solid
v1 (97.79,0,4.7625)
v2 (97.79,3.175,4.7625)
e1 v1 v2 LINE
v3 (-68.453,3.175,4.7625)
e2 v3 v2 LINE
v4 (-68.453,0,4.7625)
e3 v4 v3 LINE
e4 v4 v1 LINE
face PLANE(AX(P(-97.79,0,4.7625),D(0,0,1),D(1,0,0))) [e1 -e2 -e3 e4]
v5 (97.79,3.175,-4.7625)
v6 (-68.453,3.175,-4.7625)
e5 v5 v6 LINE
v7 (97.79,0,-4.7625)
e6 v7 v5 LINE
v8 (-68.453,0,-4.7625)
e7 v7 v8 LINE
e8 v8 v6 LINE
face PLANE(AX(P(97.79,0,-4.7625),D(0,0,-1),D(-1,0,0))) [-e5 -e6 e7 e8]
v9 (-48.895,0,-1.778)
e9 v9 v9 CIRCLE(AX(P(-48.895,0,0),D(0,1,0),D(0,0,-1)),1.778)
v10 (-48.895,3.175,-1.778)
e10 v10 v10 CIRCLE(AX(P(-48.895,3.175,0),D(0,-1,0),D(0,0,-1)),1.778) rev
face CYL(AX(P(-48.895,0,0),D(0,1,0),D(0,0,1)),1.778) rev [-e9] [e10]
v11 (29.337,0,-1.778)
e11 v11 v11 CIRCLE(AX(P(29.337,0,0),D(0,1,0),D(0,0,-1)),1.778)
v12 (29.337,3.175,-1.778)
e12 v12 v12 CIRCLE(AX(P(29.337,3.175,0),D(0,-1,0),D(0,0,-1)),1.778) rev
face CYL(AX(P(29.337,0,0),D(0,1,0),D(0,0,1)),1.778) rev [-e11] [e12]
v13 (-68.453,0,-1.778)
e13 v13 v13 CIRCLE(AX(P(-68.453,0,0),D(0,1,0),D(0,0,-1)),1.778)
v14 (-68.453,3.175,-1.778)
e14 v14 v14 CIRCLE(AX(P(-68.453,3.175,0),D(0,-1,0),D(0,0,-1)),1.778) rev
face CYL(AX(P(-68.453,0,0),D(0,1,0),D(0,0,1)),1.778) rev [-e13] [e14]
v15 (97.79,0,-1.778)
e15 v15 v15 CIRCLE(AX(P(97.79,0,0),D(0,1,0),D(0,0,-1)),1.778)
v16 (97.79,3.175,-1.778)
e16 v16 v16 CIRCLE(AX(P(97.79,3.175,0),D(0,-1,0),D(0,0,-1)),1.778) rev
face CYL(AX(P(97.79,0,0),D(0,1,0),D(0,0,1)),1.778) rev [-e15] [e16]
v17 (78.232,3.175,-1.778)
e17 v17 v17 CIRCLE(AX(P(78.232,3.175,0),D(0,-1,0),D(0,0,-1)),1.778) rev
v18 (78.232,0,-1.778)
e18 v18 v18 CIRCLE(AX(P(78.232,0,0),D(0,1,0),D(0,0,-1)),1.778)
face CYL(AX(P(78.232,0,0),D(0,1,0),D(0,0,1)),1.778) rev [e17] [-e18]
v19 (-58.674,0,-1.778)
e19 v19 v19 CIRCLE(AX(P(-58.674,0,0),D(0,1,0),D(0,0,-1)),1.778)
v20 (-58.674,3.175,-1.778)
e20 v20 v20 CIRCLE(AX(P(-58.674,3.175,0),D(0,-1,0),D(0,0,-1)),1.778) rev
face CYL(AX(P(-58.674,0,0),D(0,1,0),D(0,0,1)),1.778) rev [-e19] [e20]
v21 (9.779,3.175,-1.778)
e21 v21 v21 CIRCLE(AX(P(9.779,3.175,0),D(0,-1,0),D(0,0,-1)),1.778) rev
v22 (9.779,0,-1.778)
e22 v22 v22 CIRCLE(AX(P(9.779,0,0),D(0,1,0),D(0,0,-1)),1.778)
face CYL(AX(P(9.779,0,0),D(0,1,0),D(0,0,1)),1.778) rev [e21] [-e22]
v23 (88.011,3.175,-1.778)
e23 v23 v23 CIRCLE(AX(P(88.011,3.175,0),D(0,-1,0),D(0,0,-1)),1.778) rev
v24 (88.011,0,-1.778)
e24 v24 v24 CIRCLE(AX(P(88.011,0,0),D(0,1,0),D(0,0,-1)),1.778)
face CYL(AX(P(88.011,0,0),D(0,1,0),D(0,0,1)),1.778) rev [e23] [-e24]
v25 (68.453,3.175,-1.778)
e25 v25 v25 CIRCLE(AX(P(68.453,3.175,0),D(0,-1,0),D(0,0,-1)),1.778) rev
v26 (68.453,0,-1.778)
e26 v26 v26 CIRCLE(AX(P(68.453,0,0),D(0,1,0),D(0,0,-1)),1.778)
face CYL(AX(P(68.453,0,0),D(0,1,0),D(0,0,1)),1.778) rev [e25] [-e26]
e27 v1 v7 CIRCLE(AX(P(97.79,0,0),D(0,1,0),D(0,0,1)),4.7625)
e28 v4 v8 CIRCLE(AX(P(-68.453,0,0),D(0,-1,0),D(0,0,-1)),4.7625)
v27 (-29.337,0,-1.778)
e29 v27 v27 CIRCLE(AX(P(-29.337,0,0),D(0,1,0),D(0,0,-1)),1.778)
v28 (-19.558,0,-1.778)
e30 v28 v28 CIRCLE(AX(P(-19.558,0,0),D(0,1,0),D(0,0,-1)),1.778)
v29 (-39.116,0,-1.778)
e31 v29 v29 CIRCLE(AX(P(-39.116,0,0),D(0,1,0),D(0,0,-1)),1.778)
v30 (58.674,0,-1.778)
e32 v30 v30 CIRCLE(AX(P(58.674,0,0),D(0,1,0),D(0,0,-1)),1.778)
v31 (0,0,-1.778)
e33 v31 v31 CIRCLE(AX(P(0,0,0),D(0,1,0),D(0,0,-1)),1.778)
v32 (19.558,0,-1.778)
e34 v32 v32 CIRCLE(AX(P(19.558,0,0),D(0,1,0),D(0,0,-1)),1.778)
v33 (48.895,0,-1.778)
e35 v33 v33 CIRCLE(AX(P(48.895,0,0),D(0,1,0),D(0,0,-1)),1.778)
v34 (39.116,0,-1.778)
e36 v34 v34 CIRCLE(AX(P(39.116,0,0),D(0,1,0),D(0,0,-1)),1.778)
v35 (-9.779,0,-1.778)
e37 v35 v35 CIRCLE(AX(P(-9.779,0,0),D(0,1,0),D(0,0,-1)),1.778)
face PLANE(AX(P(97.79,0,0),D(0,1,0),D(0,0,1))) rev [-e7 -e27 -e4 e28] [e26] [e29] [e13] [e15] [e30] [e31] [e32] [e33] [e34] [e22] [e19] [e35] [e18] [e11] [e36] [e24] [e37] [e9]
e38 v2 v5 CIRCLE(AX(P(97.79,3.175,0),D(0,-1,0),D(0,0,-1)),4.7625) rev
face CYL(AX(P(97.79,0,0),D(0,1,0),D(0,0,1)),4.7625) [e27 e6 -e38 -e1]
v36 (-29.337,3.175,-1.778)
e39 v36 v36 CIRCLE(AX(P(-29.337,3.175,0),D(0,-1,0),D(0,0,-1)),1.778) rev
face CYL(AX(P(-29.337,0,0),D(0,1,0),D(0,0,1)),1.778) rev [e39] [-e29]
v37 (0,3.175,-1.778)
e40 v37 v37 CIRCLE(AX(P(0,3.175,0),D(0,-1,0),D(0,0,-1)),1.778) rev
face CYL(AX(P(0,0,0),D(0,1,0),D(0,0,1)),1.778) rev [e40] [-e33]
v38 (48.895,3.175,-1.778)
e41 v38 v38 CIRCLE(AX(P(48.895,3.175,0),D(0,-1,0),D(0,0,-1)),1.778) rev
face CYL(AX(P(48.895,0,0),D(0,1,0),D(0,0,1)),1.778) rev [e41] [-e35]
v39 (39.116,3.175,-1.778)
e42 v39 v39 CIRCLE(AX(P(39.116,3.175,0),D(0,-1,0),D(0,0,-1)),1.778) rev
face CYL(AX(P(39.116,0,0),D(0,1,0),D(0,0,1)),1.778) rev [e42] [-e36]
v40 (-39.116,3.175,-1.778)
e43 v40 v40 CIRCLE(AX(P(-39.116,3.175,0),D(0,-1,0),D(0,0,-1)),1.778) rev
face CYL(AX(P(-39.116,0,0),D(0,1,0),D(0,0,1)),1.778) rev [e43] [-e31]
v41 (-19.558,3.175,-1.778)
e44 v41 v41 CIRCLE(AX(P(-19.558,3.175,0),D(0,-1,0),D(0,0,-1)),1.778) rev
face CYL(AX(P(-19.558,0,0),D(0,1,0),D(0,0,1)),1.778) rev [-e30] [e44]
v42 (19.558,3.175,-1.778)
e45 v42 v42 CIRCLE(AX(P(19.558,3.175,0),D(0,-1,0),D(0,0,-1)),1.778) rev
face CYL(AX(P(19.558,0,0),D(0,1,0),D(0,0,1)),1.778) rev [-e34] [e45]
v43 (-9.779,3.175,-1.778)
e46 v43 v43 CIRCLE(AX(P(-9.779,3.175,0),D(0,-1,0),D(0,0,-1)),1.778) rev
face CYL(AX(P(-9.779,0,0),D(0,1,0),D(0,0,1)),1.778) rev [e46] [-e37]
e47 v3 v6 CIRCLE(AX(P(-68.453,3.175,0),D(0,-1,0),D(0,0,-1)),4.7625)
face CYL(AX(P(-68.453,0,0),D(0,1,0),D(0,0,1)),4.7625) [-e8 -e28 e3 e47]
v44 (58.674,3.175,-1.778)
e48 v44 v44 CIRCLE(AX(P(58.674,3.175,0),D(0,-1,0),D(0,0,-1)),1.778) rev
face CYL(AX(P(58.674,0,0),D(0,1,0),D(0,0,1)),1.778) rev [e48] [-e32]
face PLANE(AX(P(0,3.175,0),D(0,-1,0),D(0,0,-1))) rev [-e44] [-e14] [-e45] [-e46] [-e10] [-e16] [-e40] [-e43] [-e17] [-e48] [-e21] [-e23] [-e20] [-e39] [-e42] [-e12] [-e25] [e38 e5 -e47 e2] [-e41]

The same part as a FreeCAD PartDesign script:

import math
import FreeCAD as App
import Part
import Sketcher
Q = App.Units.Quantity

doc = App.newDocument("Part")
body = doc.addObject("PartDesign::Body", "Body")

# Sketch on XZ plane
sketch1 = body.newObject("Sketcher::SketchObject", "Sketch")
sketch1.AttachmentSupport = (doc.getObject("XZ_Plane"), [""])
sketch1.MapMode = "FlatFace"
sketch1.AttachmentOffset = App.Placement(App.Vector(0, 0, -0.25 * 25.4), App.Rotation())
sketch1.addGeometry(Part.LineSegment(App.Vector(97.79, -4.7625, 0), App.Vector(-97.79, -4.7625, 0)), False)
sketch1.addGeometry(Part.ArcOfCircle(Part.Circle(App.Vector(-97.79, 0, 0), App.Vector(0, 0, 1), 4.7625), math.radians(90), math.radians(270)), False)
sketch1.addGeometry(Part.LineSegment(App.Vector(-97.79, 4.7625, 0), App.Vector(97.79, 4.7625, 0)), False)
sketch1.addGeometry(Part.ArcOfCircle(Part.Circle(App.Vector(97.79, 0, 0), App.Vector(0, 0, 1), 4.7625), math.radians(-90), math.radians(90)), False)
sketch1.addGeometry(Part.Circle(App.Vector(-97.79, 0, 0), App.Vector(0, 0, 1), 1.778), False)
sketch1.addGeometry(Part.Circle(App.Vector(-88.011, 0, 0), App.Vector(0, 0, 1), 1.778), False)
sketch1.addGeometry(Part.Circle(App.Vector(-78.232, 0, 0), App.Vector(0, 0, 1), 1.778), False)
sketch1.addGeometry(Part.Circle(App.Vector(-68.453, 0, 0), App.Vector(0, 0, 1), 1.778), False)
sketch1.addGeometry(Part.Circle(App.Vector(-58.674, 0, 0), App.Vector(0, 0, 1), 1.778), False)
sketch1.addGeometry(Part.Circle(App.Vector(-48.895, 0, 0), App.Vector(0, 0, 1), 1.778), False)
sketch1.addGeometry(Part.Circle(App.Vector(-39.116, 0, 0), App.Vector(0, 0, 1), 1.778), False)
sketch1.addGeometry(Part.Circle(App.Vector(-29.337, 0, 0), App.Vector(0, 0, 1), 1.778), False)
sketch1.addGeometry(Part.Circle(App.Vector(-19.558, 0, 0), App.Vector(0, 0, 1), 1.778), False)
sketch1.addGeometry(Part.Circle(App.Vector(-9.779, 0, 0), App.Vector(0, 0, 1), 1.778), False)
sketch1.addGeometry(Part.Circle(App.Vector(0, 0, 0), App.Vector(0, 0, 1), 1.778), False)
sketch1.addGeometry(Part.Circle(App.Vector(9.779, 0, 0), App.Vector(0, 0, 1), 1.778), False)
sketch1.addGeometry(Part.Circle(App.Vector(19.558, 0, 0), App.Vector(0, 0, 1), 1.778), False)
sketch1.addGeometry(Part.Circle(App.Vector(29.337, 0, 0), App.Vector(0, 0, 1), 1.778), False)
sketch1.addGeometry(Part.Circle(App.Vector(39.116, 0, 0), App.Vector(0, 0, 1), 1.778), False)
sketch1.addGeometry(Part.Circle(App.Vector(48.895, 0, 0), App.Vector(0, 0, 1), 1.778), False)
sketch1.addGeometry(Part.Circle(App.Vector(58.674, 0, 0), App.Vector(0, 0, 1), 1.778), False)
sketch1.addGeometry(Part.Circle(App.Vector(68.453, 0, 0), App.Vector(0, 0, 1), 1.778), False)
sketch1.addGeometry(Part.Circle(App.Vector(78.232, 0, 0), App.Vector(0, 0, 1), 1.778), False)
sketch1.addGeometry(Part.Circle(App.Vector(88.011, 0, 0), App.Vector(0, 0, 1), 1.778), False)
sketch1.addGeometry(Part.Circle(App.Vector(97.79, 0, 0), App.Vector(0, 0, 1), 1.778), False)
sketch1.addConstraint(Sketcher.Constraint("Tangent", 0, 2, 1, 2))
sketch1.addConstraint(Sketcher.Constraint("Tangent", 1, 1, 2, 1))
sketch1.addConstraint(Sketcher.Constraint("Tangent", 2, 2, 3, 2))
sketch1.addConstraint(Sketcher.Constraint("Tangent", 3, 1, 0, 1))
sketch1.addConstraint(Sketcher.Constraint("Horizontal", 0))
sketch1.addConstraint(Sketcher.Constraint("Horizontal", 2))
sketch1.addConstraint(Sketcher.Constraint("Coincident", 14, 3, -1, 1))
sketch1.addConstraint(Sketcher.Constraint("Coincident", 4, 3, 1, 3))
sketch1.addConstraint(Sketcher.Constraint("Coincident", 24, 3, 3, 3))
sketch1.addConstraint(Sketcher.Constraint("Equal", 4, 5))
sketch1.addConstraint(Sketcher.Constraint("Equal", 5, 6))
sketch1.addConstraint(Sketcher.Constraint("Equal", 6, 7))
sketch1.addConstraint(Sketcher.Constraint("Equal", 7, 8))
sketch1.addConstraint(Sketcher.Constraint("Equal", 8, 9))
sketch1.addConstraint(Sketcher.Constraint("Equal", 9, 10))
sketch1.addConstraint(Sketcher.Constraint("Equal", 10, 11))
sketch1.addConstraint(Sketcher.Constraint("Equal", 11, 12))
sketch1.addConstraint(Sketcher.Constraint("Equal", 12, 13))
sketch1.addConstraint(Sketcher.Constraint("Equal", 13, 14))
sketch1.addConstraint(Sketcher.Constraint("Equal", 14, 15))
sketch1.addConstraint(Sketcher.Constraint("Equal", 15, 16))
sketch1.addConstraint(Sketcher.Constraint("Equal", 16, 17))
sketch1.addConstraint(Sketcher.Constraint("Equal", 17, 18))
sketch1.addConstraint(Sketcher.Constraint("Equal", 18, 19))
sketch1.addConstraint(Sketcher.Constraint("Equal", 19, 20))
sketch1.addConstraint(Sketcher.Constraint("Equal", 20, 21))
sketch1.addConstraint(Sketcher.Constraint("Equal", 21, 22))
sketch1.addConstraint(Sketcher.Constraint("Equal", 22, 23))
sketch1.addConstraint(Sketcher.Constraint("Equal", 23, 24))
sketch1.addConstraint(Sketcher.Constraint("Symmetric", 1, 3, 3, 3, -1, 1))
sketch1.addConstraint(Sketcher.Constraint("Symmetric", 13, 3, 15, 3, -1, 1))
sketch1.addConstraint(Sketcher.Constraint("Symmetric", 12, 3, 16, 3, -1, 1))
sketch1.addConstraint(Sketcher.Constraint("Symmetric", 11, 3, 17, 3, -1, 1))
sketch1.addConstraint(Sketcher.Constraint("Symmetric", 10, 3, 18, 3, -1, 1))
sketch1.addConstraint(Sketcher.Constraint("Symmetric", 9, 3, 19, 3, -1, 1))
sketch1.addConstraint(Sketcher.Constraint("Symmetric", 8, 3, 20, 3, -1, 1))
sketch1.addConstraint(Sketcher.Constraint("Symmetric", 7, 3, 21, 3, -1, 1))
sketch1.addConstraint(Sketcher.Constraint("Symmetric", 6, 3, 22, 3, -1, 1))
sketch1.addConstraint(Sketcher.Constraint("Symmetric", 5, 3, 23, 3, -1, 1))
sketch1.addConstraint(Sketcher.Constraint("PointOnObject", 5, 3, -1))
sketch1.addConstraint(Sketcher.Constraint("PointOnObject", 6, 3, -1))
sketch1.addConstraint(Sketcher.Constraint("PointOnObject", 7, 3, -1))
sketch1.addConstraint(Sketcher.Constraint("PointOnObject", 8, 3, -1))
sketch1.addConstraint(Sketcher.Constraint("PointOnObject", 9, 3, -1))
sketch1.addConstraint(Sketcher.Constraint("PointOnObject", 10, 3, -1))
sketch1.addConstraint(Sketcher.Constraint("PointOnObject", 11, 3, -1))
sketch1.addConstraint(Sketcher.Constraint("PointOnObject", 12, 3, -1))
sketch1.addConstraint(Sketcher.Constraint("PointOnObject", 13, 3, -1))
sketch1.addConstraint(Sketcher.Constraint("Diameter", 4, Q("0.14 in")))
sketch1.addConstraint(Sketcher.Constraint("DistanceX", 0, 2, 0, 1, Q("7.7 in")))
sketch1.addConstraint(Sketcher.Constraint("Radius", 1, Q("0.1875 in")))
sketch1.addConstraint(Sketcher.Constraint("DistanceX", 6, 3, -1, 1, Q("3.08 in")))
sketch1.addConstraint(Sketcher.Constraint("DistanceX", 8, 3, -1, 1, Q("2.31 in")))
sketch1.addConstraint(Sketcher.Constraint("DistanceX", 10, 3, -1, 1, Q("1.54 in")))
sketch1.addConstraint(Sketcher.Constraint("DistanceX", 12, 3, -1, 1, Q("0.77 in")))
sketch1.addConstraint(Sketcher.Constraint("DistanceX", 5, 3, 7, 3, Q("0.77 in")))
sketch1.addConstraint(Sketcher.Constraint("DistanceX", 7, 3, 9, 3, Q("0.77 in")))
sketch1.addConstraint(Sketcher.Constraint("DistanceX", 9, 3, 11, 3, Q("0.77 in")))
sketch1.addConstraint(Sketcher.Constraint("DistanceX", 11, 3, 13, 3, Q("0.77 in")))
sketch1.addConstraint(Sketcher.Constraint("DistanceX", 13, 3, 15, 3, Q("0.77 in")))
pad1 = body.newObject("PartDesign::Pad", "Pad")
pad1.Profile = sketch1
pad1.Length = Q("0.25 in")

# Sketch on XZ plane
sketch2 = body.newObject("Sketcher::SketchObject", "Sketch001")
sketch2.AttachmentSupport = (doc.getObject("XZ_Plane"), [""])
sketch2.MapMode = "FlatFace"
sketch2.AttachmentOffset = App.Placement(App.Vector(0, 0, -0.25 * 25.4), App.Rotation())
sketch2.addGeometry(Part.LineSegment(App.Vector(-109.387337, 4.7625, 0), App.Vector(-68.453, 4.7625, 0)), False)
sketch2.addGeometry(Part.ArcOfCircle(Part.Circle(App.Vector(-68.453, 0, 0), App.Vector(0, 0, 1), 4.7625), math.radians(90), math.radians(270)), False)
sketch2.addGeometry(Part.LineSegment(App.Vector(-68.453, -4.7625, 0), App.Vector(-109.387337, -4.7625, 0)), False)
sketch2.addGeometry(Part.LineSegment(App.Vector(-109.387337, -4.7625, 0), App.Vector(-109.387337, 4.7625, 0)), False)
sketch2.addConstraint(Sketcher.Constraint("Tangent", 0, 2, 1, 1))
sketch2.addConstraint(Sketcher.Constraint("Tangent", 1, 2, 2, 1))
sketch2.addConstraint(Sketcher.Constraint("Coincident", 2, 2, 3, 1))
sketch2.addConstraint(Sketcher.Constraint("Coincident", 3, 2, 0, 1))
sketch2.addConstraint(Sketcher.Constraint("Horizontal", 0))
sketch2.addConstraint(Sketcher.Constraint("Horizontal", 2))
sketch2.addConstraint(Sketcher.Constraint("Vertical", 3))
sketch2.addConstraint(Sketcher.Constraint("PointOnObject", 1, 3, -1))
sketch2.addConstraint(Sketcher.Constraint("Radius", 1, Q("0.1875 in")))
sketch2.addConstraint(Sketcher.Constraint("DistanceX", 1, 3, -1, 1, Q("2.695 in")))
sketch2.addConstraint(Sketcher.Constraint("DistanceX", 0, 1, 0, 2, 40.934337))
pocket1 = body.newObject("PartDesign::Pocket", "Pocket")
pocket1.Profile = sketch2
pocket1.Type = "ThroughAll"
pocket1.Midplane = True

# Sketch on XZ plane
sketch3 = body.newObject("Sketcher::SketchObject", "Sketch002")
sketch3.AttachmentSupport = (doc.getObject("XZ_Plane"), [""])
sketch3.MapMode = "FlatFace"
sketch3.AttachmentOffset = App.Placement(App.Vector(0, 0, -0.25 * 25.4), App.Rotation())
sketch3.addGeometry(Part.LineSegment(App.Vector(-128.173251, -45.058459, 0), App.Vector(-128.173251, 49.475955, 0)), False)
sketch3.addGeometry(Part.LineSegment(App.Vector(-128.173251, 49.475955, 0), App.Vector(115.672525, 49.475955, 0)), False)
sketch3.addGeometry(Part.LineSegment(App.Vector(115.672525, 49.475955, 0), App.Vector(115.672525, -45.058459, 0)), False)
sketch3.addGeometry(Part.LineSegment(App.Vector(115.672525, -45.058459, 0), App.Vector(-128.173251, -45.058459, 0)), False)
sketch3.addConstraint(Sketcher.Constraint("Coincident", 0, 2, 1, 1))
sketch3.addConstraint(Sketcher.Constraint("Coincident", 1, 2, 2, 1))
sketch3.addConstraint(Sketcher.Constraint("Coincident", 2, 2, 3, 1))
sketch3.addConstraint(Sketcher.Constraint("Coincident", 3, 2, 0, 1))
sketch3.addConstraint(Sketcher.Constraint("Vertical", 0))
sketch3.addConstraint(Sketcher.Constraint("Horizontal", 1))
sketch3.addConstraint(Sketcher.Constraint("Vertical", 2))
sketch3.addConstraint(Sketcher.Constraint("Horizontal", 3))
sketch3.addConstraint(Sketcher.Constraint("DistanceX", 1, 1, 1, 2, 243.845777))
sketch3.addConstraint(Sketcher.Constraint("DistanceY", 0, 1, 0, 2, 94.534413))
sketch3.addConstraint(Sketcher.Constraint("DistanceX", 0, 2, -1, 1, 128.173251))
sketch3.addConstraint(Sketcher.Constraint("DistanceY", 2, 2, -1, 1, 45.058459))
pocket2 = body.newObject("PartDesign::Pocket", "Pocket001")
pocket2.Profile = sketch3
pocket2.Length = Q("0.125 in")
pocket2.Reversed = True

doc.recompute()
